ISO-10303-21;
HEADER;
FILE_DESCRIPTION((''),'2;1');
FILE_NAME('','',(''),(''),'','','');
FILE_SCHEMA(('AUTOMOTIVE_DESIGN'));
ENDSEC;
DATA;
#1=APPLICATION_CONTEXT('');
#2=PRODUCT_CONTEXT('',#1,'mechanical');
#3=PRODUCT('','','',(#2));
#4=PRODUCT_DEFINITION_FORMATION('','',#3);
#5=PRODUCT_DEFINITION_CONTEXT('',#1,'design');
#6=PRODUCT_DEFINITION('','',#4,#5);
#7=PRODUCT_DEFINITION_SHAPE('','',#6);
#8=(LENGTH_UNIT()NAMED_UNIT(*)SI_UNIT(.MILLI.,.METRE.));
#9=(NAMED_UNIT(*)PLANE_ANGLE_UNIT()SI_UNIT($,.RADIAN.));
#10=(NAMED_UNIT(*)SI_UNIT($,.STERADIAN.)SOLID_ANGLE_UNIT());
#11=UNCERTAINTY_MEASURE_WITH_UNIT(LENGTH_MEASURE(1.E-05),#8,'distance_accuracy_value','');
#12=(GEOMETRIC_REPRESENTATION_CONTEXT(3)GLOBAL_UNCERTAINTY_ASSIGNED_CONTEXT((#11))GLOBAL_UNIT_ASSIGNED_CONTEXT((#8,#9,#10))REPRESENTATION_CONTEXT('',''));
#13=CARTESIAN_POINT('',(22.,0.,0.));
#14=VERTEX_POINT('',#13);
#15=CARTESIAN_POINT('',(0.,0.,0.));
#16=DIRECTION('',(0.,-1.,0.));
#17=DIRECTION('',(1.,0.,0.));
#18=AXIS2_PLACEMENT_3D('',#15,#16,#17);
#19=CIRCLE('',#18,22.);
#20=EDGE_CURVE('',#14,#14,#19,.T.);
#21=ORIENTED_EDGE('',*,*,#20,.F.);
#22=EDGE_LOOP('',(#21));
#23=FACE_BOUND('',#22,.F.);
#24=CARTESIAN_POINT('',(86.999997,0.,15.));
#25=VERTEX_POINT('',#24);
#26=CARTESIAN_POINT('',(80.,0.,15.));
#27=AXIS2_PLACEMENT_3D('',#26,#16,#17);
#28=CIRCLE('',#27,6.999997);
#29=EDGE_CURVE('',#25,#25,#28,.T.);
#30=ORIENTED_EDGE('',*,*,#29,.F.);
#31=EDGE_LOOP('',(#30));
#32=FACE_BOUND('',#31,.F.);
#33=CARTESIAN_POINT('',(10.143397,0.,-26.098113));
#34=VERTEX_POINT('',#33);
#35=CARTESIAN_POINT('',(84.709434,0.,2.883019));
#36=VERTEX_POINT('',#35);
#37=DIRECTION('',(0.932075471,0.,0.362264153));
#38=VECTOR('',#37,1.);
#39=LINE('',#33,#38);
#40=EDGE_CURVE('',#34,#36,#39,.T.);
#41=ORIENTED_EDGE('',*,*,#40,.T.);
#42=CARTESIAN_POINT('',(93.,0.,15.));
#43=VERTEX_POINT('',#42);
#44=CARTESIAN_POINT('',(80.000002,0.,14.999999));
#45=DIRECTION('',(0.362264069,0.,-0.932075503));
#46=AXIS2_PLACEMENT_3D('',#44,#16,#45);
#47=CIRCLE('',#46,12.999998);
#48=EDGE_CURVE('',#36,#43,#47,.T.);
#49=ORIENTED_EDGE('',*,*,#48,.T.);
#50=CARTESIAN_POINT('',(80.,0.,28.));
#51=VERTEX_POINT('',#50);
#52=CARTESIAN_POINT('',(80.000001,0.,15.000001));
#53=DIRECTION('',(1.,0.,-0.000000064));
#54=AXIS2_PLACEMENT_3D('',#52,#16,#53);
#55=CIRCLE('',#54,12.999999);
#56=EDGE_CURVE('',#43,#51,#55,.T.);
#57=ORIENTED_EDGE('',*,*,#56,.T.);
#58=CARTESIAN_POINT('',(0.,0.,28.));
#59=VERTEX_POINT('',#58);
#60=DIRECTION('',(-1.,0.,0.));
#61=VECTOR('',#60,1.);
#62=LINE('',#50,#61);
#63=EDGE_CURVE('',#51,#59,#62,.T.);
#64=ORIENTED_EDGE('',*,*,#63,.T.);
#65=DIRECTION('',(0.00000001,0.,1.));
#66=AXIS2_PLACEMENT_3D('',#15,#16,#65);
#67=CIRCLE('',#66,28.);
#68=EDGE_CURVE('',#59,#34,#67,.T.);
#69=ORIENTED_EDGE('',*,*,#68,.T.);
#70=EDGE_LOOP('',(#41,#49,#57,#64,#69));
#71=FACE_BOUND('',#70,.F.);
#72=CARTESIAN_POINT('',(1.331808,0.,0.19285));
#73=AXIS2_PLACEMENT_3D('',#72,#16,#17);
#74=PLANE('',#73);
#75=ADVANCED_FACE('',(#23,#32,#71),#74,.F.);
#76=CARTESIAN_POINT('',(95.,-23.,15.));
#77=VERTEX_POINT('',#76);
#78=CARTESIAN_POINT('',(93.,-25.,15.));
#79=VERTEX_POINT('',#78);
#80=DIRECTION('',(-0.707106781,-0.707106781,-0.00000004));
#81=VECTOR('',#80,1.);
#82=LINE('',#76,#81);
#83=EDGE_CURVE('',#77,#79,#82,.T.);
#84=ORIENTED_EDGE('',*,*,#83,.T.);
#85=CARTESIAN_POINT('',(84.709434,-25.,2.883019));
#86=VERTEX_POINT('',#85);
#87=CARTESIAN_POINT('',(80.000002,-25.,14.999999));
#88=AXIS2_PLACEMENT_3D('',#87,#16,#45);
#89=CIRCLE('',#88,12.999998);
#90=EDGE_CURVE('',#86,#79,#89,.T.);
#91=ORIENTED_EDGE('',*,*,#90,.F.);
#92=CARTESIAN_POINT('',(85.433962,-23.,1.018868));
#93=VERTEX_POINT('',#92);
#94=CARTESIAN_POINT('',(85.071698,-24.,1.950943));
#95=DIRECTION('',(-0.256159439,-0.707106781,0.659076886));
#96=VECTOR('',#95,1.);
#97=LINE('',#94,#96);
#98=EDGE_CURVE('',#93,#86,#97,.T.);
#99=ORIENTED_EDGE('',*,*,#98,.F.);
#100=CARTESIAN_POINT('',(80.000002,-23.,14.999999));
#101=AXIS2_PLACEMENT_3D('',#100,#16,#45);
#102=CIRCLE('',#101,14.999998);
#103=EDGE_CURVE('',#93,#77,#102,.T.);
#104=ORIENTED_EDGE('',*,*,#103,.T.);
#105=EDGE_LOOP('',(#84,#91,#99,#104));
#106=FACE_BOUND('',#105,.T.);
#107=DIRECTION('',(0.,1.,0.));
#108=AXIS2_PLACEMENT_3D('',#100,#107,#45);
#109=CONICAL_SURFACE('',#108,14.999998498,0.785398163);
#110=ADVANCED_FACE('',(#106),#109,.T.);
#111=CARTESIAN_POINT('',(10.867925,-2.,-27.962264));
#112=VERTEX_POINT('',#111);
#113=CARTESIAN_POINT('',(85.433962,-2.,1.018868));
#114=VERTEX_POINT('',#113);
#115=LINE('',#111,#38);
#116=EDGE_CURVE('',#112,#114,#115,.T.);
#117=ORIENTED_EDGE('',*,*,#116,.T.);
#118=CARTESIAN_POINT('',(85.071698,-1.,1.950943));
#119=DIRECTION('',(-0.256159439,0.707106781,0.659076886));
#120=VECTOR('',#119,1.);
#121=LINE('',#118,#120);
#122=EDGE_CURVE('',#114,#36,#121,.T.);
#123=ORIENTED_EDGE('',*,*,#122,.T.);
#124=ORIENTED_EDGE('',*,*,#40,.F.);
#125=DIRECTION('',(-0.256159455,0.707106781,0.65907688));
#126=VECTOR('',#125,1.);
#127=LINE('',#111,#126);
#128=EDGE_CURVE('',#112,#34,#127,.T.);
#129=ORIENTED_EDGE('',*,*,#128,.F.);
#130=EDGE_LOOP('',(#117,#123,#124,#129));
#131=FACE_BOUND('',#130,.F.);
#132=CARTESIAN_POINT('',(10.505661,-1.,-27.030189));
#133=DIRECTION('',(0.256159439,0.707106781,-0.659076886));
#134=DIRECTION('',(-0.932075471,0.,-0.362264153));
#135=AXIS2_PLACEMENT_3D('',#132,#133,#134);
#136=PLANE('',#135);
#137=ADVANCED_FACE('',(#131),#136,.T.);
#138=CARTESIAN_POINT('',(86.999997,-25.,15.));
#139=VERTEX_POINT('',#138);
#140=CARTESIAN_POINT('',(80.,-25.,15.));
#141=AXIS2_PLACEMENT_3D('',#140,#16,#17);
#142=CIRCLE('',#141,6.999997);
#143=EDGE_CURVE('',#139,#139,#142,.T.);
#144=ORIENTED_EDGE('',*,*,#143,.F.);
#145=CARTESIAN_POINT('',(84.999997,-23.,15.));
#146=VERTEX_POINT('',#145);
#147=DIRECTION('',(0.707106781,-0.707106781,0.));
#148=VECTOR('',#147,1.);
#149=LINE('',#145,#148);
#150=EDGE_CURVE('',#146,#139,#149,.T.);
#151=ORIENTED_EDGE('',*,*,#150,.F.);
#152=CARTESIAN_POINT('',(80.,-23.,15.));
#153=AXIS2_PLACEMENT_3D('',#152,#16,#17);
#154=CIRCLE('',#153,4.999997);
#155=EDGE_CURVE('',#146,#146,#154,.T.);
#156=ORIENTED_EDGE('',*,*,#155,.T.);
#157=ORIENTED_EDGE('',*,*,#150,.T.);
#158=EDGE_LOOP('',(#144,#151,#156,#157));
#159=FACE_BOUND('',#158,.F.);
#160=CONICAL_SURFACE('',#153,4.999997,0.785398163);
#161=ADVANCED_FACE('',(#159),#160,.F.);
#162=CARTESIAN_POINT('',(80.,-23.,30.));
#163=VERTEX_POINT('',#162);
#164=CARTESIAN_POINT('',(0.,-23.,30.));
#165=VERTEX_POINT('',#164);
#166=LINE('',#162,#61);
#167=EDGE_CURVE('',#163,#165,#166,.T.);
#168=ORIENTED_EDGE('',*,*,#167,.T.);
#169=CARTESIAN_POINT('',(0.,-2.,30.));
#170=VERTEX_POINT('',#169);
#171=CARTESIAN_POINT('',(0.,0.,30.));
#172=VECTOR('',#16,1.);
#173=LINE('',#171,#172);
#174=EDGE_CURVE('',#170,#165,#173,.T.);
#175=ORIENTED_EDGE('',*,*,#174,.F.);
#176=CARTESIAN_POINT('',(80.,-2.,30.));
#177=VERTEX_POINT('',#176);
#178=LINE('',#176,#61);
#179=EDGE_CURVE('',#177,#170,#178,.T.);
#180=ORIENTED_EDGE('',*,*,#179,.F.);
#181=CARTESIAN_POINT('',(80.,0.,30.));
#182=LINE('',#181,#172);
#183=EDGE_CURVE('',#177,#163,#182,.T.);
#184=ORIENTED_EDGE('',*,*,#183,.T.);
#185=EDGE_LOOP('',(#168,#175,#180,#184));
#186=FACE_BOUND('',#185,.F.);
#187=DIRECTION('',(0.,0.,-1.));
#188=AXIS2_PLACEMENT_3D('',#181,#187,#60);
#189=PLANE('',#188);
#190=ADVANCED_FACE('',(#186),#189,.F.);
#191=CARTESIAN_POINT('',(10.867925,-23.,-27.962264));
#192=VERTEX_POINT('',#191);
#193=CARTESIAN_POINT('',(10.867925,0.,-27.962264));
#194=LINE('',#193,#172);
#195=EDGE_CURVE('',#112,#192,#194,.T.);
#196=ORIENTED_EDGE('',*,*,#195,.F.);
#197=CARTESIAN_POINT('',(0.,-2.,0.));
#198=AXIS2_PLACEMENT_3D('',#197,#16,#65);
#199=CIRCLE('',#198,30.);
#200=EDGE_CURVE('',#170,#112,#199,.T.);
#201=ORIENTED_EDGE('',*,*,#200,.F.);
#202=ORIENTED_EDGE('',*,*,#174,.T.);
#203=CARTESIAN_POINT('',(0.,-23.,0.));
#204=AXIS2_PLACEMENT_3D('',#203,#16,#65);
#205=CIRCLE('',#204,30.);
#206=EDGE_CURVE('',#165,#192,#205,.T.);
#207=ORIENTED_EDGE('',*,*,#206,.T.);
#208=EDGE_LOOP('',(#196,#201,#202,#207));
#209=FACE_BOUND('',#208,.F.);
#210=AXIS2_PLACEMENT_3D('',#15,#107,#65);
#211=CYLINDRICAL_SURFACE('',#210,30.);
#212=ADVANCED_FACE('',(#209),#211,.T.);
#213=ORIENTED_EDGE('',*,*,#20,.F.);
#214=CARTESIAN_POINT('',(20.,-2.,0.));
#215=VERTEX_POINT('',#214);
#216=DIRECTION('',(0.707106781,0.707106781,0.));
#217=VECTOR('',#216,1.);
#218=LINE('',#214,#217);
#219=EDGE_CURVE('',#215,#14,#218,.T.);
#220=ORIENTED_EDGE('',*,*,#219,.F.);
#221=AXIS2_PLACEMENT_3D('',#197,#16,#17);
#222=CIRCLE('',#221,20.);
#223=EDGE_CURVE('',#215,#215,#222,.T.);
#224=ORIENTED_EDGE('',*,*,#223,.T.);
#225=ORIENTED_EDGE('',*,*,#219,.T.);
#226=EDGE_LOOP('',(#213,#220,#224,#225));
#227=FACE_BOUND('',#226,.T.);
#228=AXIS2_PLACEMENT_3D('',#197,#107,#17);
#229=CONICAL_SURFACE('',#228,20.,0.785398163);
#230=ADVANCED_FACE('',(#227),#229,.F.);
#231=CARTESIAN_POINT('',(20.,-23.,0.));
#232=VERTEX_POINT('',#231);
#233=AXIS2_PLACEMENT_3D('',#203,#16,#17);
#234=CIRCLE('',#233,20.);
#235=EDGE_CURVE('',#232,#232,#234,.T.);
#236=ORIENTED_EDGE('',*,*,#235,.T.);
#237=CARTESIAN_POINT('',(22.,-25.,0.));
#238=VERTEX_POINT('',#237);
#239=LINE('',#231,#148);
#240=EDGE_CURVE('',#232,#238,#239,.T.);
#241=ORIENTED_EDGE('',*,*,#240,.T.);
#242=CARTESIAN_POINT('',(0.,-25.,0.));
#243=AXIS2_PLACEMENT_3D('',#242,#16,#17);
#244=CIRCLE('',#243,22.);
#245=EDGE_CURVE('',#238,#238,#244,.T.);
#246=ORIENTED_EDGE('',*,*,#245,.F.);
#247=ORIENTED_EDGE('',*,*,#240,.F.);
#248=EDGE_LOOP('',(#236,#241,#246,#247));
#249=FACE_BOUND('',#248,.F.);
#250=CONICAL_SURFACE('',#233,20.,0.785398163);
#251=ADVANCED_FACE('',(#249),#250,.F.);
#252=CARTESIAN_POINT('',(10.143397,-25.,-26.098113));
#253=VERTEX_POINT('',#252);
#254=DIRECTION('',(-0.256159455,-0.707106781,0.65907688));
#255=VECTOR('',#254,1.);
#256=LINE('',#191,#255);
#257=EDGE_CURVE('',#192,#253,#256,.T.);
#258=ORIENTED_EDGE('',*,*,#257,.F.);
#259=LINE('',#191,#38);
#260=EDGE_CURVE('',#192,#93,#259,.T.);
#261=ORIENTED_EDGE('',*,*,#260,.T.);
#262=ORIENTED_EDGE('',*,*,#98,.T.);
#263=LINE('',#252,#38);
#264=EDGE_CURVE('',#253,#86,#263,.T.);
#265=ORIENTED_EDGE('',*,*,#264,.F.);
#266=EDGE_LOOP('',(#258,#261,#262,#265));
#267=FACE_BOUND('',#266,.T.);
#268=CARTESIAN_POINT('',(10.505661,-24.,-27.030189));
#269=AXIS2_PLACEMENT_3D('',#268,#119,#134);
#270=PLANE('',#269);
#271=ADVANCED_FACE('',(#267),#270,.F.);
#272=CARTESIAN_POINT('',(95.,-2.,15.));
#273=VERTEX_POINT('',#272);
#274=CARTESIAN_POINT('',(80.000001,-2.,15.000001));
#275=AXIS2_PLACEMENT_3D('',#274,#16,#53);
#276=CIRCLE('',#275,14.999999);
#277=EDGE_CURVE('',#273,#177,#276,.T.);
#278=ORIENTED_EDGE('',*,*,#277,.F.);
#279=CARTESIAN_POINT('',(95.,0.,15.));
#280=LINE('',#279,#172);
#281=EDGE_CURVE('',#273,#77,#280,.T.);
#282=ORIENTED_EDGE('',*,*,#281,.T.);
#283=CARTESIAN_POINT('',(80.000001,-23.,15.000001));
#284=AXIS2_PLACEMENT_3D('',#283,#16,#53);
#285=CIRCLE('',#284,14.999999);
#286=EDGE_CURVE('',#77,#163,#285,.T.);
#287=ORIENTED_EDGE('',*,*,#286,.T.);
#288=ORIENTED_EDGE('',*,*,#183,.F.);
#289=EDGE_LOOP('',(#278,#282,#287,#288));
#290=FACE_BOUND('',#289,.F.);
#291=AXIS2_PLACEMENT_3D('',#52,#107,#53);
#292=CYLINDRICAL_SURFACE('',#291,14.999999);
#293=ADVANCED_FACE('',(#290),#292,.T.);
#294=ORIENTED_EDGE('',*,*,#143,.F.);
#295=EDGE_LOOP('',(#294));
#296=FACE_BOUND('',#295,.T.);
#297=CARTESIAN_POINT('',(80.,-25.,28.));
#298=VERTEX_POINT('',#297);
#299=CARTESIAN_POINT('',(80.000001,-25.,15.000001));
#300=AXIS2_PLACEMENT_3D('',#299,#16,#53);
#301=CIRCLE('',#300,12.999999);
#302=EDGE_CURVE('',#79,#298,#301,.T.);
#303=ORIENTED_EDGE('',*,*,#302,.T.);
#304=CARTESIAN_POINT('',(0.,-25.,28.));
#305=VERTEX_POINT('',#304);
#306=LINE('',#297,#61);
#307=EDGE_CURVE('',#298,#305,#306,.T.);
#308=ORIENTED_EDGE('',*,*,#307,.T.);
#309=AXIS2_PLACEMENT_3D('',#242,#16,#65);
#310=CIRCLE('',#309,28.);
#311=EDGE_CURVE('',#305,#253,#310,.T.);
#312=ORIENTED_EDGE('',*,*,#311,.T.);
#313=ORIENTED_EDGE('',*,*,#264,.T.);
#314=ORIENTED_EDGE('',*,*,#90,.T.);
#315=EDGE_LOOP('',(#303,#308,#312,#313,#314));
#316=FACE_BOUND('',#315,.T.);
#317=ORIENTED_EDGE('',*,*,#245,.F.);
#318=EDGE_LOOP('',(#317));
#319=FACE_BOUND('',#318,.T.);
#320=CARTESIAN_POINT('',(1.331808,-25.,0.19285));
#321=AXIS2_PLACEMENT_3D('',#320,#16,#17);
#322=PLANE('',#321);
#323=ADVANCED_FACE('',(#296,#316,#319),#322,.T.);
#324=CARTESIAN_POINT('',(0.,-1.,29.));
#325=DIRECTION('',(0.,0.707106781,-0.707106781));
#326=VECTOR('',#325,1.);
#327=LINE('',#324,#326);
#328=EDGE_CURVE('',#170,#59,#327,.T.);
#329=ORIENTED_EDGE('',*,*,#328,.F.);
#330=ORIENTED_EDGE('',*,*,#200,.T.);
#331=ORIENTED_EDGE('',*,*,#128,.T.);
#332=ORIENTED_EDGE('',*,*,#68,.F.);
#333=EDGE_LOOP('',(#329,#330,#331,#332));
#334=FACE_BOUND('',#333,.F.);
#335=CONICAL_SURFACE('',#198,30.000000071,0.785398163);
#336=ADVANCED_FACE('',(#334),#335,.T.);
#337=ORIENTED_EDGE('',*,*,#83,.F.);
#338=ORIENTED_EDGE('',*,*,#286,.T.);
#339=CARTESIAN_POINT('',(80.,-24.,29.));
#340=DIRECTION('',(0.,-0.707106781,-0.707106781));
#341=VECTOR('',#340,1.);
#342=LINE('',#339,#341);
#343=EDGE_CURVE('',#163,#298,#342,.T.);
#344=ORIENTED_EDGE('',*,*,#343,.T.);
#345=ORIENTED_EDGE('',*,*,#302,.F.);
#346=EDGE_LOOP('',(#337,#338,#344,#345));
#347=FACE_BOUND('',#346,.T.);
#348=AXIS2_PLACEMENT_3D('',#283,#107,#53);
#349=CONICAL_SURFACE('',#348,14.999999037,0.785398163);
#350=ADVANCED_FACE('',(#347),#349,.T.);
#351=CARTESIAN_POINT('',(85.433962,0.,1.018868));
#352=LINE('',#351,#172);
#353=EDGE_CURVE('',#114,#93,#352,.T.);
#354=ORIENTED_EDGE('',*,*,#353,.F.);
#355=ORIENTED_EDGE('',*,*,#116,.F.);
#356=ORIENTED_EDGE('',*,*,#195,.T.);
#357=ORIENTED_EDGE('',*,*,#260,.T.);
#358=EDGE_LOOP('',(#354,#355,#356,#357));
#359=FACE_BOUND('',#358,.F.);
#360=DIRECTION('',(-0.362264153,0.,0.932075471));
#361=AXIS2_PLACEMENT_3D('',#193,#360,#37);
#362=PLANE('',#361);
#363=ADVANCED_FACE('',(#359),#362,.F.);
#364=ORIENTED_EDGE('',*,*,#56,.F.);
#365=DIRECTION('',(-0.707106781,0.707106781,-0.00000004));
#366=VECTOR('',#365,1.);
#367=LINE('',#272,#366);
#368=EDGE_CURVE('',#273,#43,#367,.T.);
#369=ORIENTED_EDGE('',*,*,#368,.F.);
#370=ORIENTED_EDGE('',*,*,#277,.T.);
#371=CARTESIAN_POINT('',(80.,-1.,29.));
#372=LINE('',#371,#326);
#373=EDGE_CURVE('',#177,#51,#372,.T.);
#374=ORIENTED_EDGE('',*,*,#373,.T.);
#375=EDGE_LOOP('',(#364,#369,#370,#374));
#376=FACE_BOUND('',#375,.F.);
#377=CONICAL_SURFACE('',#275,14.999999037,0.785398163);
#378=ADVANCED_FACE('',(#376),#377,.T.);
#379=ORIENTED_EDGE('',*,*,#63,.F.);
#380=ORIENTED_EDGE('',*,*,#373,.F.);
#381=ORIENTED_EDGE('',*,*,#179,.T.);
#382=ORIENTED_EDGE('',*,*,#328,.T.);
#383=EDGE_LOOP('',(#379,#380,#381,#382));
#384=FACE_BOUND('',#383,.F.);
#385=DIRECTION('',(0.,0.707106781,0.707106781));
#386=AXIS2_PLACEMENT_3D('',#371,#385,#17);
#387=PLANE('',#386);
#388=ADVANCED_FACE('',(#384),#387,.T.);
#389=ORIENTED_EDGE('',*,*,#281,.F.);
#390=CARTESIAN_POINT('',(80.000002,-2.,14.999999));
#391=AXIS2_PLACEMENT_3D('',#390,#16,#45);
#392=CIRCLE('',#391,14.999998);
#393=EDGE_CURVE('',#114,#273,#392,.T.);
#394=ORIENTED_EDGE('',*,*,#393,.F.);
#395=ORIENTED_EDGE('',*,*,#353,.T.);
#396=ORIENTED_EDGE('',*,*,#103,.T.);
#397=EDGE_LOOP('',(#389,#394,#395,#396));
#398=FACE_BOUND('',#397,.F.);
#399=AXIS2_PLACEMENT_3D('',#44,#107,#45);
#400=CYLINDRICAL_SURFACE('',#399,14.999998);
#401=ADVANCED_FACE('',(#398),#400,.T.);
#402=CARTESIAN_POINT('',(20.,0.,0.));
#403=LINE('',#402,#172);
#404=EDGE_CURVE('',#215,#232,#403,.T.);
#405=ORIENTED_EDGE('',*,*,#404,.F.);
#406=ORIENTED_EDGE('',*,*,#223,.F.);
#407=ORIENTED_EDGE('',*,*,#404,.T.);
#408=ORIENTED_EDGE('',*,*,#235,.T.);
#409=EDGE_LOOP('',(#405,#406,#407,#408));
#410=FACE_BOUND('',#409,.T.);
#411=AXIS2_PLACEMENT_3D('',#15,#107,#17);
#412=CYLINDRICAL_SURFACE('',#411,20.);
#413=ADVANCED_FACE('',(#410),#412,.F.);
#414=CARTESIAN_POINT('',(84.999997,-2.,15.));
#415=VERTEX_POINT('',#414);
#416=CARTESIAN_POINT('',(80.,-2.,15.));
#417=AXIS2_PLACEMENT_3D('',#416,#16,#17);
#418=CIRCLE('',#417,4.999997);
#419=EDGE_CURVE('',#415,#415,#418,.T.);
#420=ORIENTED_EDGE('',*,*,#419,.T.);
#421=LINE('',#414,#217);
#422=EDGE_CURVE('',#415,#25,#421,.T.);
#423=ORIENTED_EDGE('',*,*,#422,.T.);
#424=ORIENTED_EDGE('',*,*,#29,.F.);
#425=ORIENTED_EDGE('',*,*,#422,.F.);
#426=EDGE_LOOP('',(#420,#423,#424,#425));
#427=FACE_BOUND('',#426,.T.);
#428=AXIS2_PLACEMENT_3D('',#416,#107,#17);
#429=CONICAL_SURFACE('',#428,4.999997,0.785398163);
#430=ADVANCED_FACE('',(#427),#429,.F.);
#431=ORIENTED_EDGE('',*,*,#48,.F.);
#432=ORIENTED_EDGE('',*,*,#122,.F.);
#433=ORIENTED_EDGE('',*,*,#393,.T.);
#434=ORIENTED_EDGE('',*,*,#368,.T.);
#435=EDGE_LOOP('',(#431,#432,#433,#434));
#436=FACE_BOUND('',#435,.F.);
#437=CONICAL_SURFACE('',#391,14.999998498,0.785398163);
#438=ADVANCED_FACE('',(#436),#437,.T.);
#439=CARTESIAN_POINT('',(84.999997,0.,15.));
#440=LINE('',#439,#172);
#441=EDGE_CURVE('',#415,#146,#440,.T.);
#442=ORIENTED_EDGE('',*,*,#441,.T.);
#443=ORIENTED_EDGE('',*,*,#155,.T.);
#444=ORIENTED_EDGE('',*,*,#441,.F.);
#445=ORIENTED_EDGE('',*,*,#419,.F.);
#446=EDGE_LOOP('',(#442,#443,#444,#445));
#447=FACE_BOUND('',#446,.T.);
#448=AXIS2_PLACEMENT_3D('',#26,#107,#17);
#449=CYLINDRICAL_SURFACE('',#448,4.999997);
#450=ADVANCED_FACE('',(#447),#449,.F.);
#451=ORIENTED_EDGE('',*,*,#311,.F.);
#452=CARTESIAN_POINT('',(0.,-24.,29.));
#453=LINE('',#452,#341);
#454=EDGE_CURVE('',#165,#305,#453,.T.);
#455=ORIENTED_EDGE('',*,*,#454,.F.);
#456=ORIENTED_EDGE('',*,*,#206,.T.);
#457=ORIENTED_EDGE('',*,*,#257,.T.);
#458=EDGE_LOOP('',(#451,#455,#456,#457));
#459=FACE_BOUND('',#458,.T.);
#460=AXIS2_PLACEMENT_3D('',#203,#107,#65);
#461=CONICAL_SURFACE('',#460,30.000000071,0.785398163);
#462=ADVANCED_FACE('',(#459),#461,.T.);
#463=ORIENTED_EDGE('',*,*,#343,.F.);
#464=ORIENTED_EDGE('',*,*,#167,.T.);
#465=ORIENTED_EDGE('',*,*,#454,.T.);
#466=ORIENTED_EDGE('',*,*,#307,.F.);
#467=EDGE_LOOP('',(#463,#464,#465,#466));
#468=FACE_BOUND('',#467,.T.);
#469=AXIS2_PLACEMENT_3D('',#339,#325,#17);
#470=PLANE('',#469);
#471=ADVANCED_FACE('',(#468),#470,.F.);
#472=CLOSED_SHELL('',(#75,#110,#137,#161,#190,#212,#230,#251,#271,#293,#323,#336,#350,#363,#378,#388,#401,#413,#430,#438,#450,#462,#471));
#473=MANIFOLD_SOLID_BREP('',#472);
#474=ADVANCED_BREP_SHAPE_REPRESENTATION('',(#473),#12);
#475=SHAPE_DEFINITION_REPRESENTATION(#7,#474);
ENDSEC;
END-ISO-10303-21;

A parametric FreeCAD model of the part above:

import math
import FreeCAD as App
import Part
import Sketcher

V = App.Vector


def edges_at(feature, points):
    """Names of the edges that pass closest to the given points."""
    edges = feature.Shape.Edges
    near = lambda p: min(range(len(edges)), key=lambda i: edges[i].distToShape(Part.Vertex(*p))[0])
    return sorted({f"Edge{near(p) + 1}" for p in points})

doc = App.newDocument("Part")
params = doc.addObject("Spreadsheet::Sheet", "Params")
for row, (alias, value) in enumerate([
    ("sketch1_diameter", "40 mm"),
    ("sketch1_radius", "30 mm"),
    ("sketch1_radius2", "14.999998 mm"),
    ("sketch1_width", "80 mm"),
    ("pad1_length", "25 mm"),
    ("chamfer_size", "2 mm"),
], start=1):
    params.set(f"A{row}", alias)
    params.set(f"B{row}", "=" + value)
    params.setAlias(f"B{row}", alias)

body = doc.addObject("PartDesign::Body", "Body")

# Sketch on XZ plane
sketch1 = body.newObject("Sketcher::SketchObject", "Sketch")
sketch1.AttachmentSupport = (doc.getObject("XZ_Plane"), [""])
sketch1.MapMode = "FlatFace"
sketch1.addGeometry(Part.ArcOfCircle(Part.Circle(V(0, 0, 0), V(0, 0, 1), 30), math.radians(90), math.radians(291)), False)
sketch1.addGeometry(Part.LineSegment(V(10.9, -28, 0), V(85.4, 1, 0)), False)
sketch1.addGeometry(Part.ArcOfCircle(Part.Circle(V(80, 15, 0), V(0, 0, 1), 15), math.radians(-69), math.radians(0)), False)
sketch1.addGeometry(Part.ArcOfCircle(Part.Circle(V(80, 15, 0), V(0, 0, 1), 15), math.radians(0), math.radians(90)), False)
sketch1.addGeometry(Part.LineSegment(V(80, 30, 0), V(0, 30, 0)), False)
sketch1.addGeometry(Part.Circle(V(0, 0, 0), V(0, 0, 1), 20), False)
sketch1.addGeometry(Part.Circle(V(80, 15, 0), V(0, 0, 1), 5), False)
sketch1.addConstraint(Sketcher.Constraint("Tangent", 0, 2, 1, 1))
sketch1.addConstraint(Sketcher.Constraint("Tangent", 1, 2, 2, 1))
sketch1.addConstraint(Sketcher.Constraint("Tangent", 2, 2, 3, 1))
sketch1.addConstraint(Sketcher.Constraint("Tangent", 3, 2, 4, 1))
sketch1.addConstraint(Sketcher.Constraint("Tangent", 4, 2, 0, 1))
sketch1.addConstraint(Sketcher.Constraint("Horizontal", 4))
sketch1.addConstraint(Sketcher.Constraint("Coincident", 0, 3, -1, 1))
sketch1.addConstraint(Sketcher.Constraint("Coincident", 5, 3, -1, 1))
sketch1.addConstraint(Sketcher.Constraint("Coincident", 6, 3, 2, 3))
sketch1.addConstraint(Sketcher.Constraint("Equal", 2, 3))
sketch1.addConstraint(Sketcher.Constraint("Horizontal", 6, 3, 2, 2))
sketch1.addConstraint(Sketcher.Constraint("Diameter", 5, 40.0))
sketch1.addConstraint(Sketcher.Constraint("Radius", 0, 30.0))
sketch1.addConstraint(Sketcher.Constraint("Radius", 2, 14.999998))
sketch1.addConstraint(Sketcher.Constraint("DistanceX", 4, 2, 4, 1, 80.0))
sketch1.addConstraint(Sketcher.Constraint("Diameter", 6, 9.999994))
sketch1.setExpression("Constraints[11]", "Params.sketch1_diameter")
sketch1.setExpression("Constraints[12]", "Params.sketch1_radius")
sketch1.setExpression("Constraints[13]", "Params.sketch1_radius2")
sketch1.setExpression("Constraints[14]", "Params.sketch1_width")
pad1 = body.newObject("PartDesign::Pad", "Pad")
pad1.Profile = sketch1
pad1.setExpression("Length", "Params.pad1_length")
doc.recompute()

chamfer = body.newObject("PartDesign::Chamfer", "Chamfer")
chamfer.Base = (pad1, edges_at(pad1, [
    (-20, -25, 0),
    (75, -25, 15),
    (-20, 0, 0),
    (75, 0, 15),
    (40, 0, 30),
    (40, -25, 30),
]))
chamfer.setExpression("Size", "Params.chamfer_size")

doc.recompute()
